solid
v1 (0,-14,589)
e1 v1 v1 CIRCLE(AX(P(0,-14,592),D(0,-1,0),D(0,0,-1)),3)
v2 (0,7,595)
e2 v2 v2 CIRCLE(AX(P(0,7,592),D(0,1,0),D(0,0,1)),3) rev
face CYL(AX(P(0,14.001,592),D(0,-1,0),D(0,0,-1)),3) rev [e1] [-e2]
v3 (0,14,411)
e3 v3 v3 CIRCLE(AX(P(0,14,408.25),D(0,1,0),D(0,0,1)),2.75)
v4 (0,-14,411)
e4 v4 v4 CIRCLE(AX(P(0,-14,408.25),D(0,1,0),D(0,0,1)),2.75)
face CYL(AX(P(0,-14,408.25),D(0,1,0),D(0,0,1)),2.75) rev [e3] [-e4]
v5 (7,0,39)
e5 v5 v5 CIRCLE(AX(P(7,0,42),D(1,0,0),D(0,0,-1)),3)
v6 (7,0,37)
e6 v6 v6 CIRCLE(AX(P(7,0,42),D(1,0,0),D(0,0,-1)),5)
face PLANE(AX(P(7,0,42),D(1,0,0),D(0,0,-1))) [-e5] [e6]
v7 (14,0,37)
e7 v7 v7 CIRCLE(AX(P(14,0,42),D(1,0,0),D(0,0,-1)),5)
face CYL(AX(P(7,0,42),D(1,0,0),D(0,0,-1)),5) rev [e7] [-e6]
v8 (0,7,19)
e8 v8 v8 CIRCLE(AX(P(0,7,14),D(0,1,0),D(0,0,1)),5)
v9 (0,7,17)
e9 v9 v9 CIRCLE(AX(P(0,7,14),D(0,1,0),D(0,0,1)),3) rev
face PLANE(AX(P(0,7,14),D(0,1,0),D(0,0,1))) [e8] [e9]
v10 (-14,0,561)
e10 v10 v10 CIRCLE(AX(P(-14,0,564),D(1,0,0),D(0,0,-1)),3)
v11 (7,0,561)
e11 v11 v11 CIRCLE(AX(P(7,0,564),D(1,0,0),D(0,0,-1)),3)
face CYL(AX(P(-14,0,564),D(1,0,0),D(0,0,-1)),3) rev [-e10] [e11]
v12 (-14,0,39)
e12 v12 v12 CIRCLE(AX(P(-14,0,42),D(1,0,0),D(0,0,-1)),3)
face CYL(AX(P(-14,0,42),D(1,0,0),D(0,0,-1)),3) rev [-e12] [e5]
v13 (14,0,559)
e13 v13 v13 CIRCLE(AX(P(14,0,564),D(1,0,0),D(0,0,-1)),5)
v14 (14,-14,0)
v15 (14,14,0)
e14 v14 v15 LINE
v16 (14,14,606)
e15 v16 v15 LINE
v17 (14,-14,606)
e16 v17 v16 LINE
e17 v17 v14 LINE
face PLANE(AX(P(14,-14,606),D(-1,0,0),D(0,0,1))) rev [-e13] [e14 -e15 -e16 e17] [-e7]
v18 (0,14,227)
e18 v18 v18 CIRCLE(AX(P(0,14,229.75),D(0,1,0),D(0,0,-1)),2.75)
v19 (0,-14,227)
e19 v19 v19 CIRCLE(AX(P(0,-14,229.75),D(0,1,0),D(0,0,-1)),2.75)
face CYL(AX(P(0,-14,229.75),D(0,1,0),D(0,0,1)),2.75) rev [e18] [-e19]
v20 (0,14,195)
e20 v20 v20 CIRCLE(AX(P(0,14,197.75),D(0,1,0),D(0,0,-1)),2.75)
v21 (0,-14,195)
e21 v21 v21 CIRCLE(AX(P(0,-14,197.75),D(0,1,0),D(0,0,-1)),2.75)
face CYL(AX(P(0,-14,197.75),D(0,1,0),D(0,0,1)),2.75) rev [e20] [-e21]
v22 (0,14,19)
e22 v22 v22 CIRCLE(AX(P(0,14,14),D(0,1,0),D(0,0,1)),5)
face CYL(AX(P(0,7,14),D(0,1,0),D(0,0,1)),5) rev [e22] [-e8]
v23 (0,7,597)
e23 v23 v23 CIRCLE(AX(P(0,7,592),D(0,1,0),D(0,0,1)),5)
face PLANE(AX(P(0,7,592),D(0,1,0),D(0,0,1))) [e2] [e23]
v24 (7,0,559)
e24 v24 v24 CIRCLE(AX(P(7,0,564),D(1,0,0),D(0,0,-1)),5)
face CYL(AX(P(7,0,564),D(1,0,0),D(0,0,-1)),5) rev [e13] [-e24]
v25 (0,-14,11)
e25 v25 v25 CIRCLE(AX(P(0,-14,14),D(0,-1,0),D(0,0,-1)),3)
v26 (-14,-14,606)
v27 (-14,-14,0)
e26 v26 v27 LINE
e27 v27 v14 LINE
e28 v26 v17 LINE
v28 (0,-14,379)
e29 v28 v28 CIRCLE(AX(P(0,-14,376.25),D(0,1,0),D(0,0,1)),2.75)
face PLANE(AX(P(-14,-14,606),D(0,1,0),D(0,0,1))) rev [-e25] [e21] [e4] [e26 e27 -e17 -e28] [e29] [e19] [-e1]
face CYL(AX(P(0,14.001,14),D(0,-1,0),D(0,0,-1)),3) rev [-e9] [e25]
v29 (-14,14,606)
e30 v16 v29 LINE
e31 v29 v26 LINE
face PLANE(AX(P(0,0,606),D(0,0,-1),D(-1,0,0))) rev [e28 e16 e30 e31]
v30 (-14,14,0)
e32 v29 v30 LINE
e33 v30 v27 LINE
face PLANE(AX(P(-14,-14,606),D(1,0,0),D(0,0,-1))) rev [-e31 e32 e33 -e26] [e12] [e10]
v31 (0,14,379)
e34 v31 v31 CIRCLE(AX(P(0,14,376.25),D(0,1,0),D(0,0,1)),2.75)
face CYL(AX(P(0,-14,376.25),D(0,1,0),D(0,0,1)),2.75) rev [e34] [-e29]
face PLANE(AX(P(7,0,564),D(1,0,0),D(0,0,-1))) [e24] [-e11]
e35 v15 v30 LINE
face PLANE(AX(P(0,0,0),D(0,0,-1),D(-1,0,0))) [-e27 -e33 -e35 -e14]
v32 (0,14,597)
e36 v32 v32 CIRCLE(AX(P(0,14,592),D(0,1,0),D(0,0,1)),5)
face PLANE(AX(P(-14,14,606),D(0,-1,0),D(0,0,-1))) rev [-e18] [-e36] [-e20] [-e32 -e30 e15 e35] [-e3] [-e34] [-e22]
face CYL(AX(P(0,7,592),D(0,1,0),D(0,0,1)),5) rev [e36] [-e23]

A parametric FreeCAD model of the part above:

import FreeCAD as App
import Part
import Sketcher
from FreeCAD import Vector
Q = App.Units.Quantity

doc = App.newDocument("Part")
body = doc.addObject("PartDesign::Body", "Body")

# Sketch on XY plane
sketch1 = body.newObject("Sketcher::SketchObject", "Sketch")
sketch1.AttachmentSupport = (doc.getObject("XY_Plane"), [""])
sketch1.MapMode = "FlatFace"
sketch1.addGeometry(Part.LineSegment(Vector(-14, 14, 0), Vector(-14, -14, 0)), False)
sketch1.addGeometry(Part.LineSegment(Vector(-14, -14, 0), Vector(14, -14, 0)), False)
sketch1.addGeometry(Part.LineSegment(Vector(14, -14, 0), Vector(14, 14, 0)), False)
sketch1.addGeometry(Part.LineSegment(Vector(14, 14, 0), Vector(-14, 14, 0)), False)
sketch1.addConstraint(Sketcher.Constraint("Coincident", 0, 2, 1, 1))
sketch1.addConstraint(Sketcher.Constraint("Coincident", 1, 2, 2, 1))
sketch1.addConstraint(Sketcher.Constraint("Coincident", 2, 2, 3, 1))
sketch1.addConstraint(Sketcher.Constraint("Coincident", 3, 2, 0, 1))
sketch1.addConstraint(Sketcher.Constraint("Vertical", 0))
sketch1.addConstraint(Sketcher.Constraint("Horizontal", 1))
sketch1.addConstraint(Sketcher.Constraint("Vertical", 2))
sketch1.addConstraint(Sketcher.Constraint("Horizontal", 3))
sketch1.addConstraint(Sketcher.Constraint("Symmetric", 0, 2, 2, 2, -1, 1))
sketch1.addConstraint(Sketcher.Constraint("Equal", 3, 0))
sketch1.addConstraint(Sketcher.Constraint("DistanceX", 1, 1, 1, 2, Q("28 mm")))
pad1 = body.newObject("PartDesign::Pad", "Pad")
pad1.Profile = sketch1
pad1.Length = 606

# Sketch on YZ plane
sketch2 = body.newObject("Sketcher::SketchObject", "Sketch001")
sketch2.AttachmentSupport = (doc.getObject("YZ_Plane"), [""])
sketch2.MapMode = "FlatFace"
sketch2.AttachmentOffset = App.Placement(Vector(0, 0, 14), App.Rotation())
sketch2.addGeometry(Part.Circle(Vector(0, 564, 0), Vector(0, 0, 1), 5), False)
sketch2.addGeometry(Part.Circle(Vector(0, 42, 0), Vector(0, 0, 1), 5), False)
sketch2.addConstraint(Sketcher.Constraint("Equal", 0, 1))
sketch2.addConstraint(Sketcher.Constraint("PointOnObject", 0, 3, -2))
sketch2.addConstraint(Sketcher.Constraint("PointOnObject", 1, 3, -2))
sketch2.addConstraint(Sketcher.Constraint("Diameter", 0, Q("10 mm")))
sketch2.addConstraint(Sketcher.Constraint("DistanceY", -1, 1, 0, 3, Q("564 mm")))
sketch2.addConstraint(Sketcher.Constraint("DistanceY", -1, 1, 1, 3, Q("42 mm")))
pocket1 = body.newObject("PartDesign::Pocket", "Pocket")
pocket1.Profile = sketch2
pocket1.Length = 7

# Sketch on YZ plane
sketch3 = body.newObject("Sketcher::SketchObject", "Sketch002")
sketch3.AttachmentSupport = (doc.getObject("YZ_Plane"), [""])
sketch3.MapMode = "FlatFace"
sketch3.AttachmentOffset = App.Placement(Vector(0, 0, 14), App.Rotation())
sketch3.addGeometry(Part.Circle(Vector(0, 564, 0), Vector(0, 0, 1), 3), False)
sketch3.addGeometry(Part.Circle(Vector(0, 42, 0), Vector(0, 0, 1), 3), False)
sketch3.addConstraint(Sketcher.Constraint("Equal", 0, 1))
sketch3.addConstraint(Sketcher.Constraint("PointOnObject", 0, 3, -2))
sketch3.addConstraint(Sketcher.Constraint("PointOnObject", 1, 3, -2))
sketch3.addConstraint(Sketcher.Constraint("Diameter", 0, Q("6 mm")))
sketch3.addConstraint(Sketcher.Constraint("DistanceY", -1, 1, 0, 3, Q("564 mm")))
sketch3.addConstraint(Sketcher.Constraint("DistanceY", -1, 1, 1, 3, Q("42 mm")))
pocket2 = body.newObject("PartDesign::Pocket", "Pocket001")
pocket2.Profile = sketch3
pocket2.Type = "ThroughAll"
pocket2.Midplane = True

# Sketch on XZ plane
sketch4 = body.newObject("Sketcher::SketchObject", "Sketch003")
sketch4.AttachmentSupport = (doc.getObject("XZ_Plane"), [""])
sketch4.MapMode = "FlatFace"
sketch4.AttachmentOffset = App.Placement(Vector(0, 0, 14), App.Rotation())
sketch4.addGeometry(Part.Circle(Vector(0, 14, 0), Vector(0, 0, 1), 3), False)
sketch4.addConstraint(Sketcher.Constraint("PointOnObject", 0, 3, -2))
sketch4.addConstraint(Sketcher.Constraint("Diameter", 0, Q("6 mm")))
sketch4.addConstraint(Sketcher.Constraint("DistanceY", -1, 1, 0, 3, Q("14 mm")))
pocket3 = body.newObject("PartDesign::Pocket", "Pocket002")
pocket3.Profile = sketch4
pocket3.Type = "UpToFirst"

# Sketch on XZ plane
sketch5 = body.newObject("Sketcher::SketchObject", "Sketch004")
sketch5.AttachmentSupport = (doc.getObject("XZ_Plane"), [""])
sketch5.MapMode = "FlatFace"
sketch5.AttachmentOffset = App.Placement(Vector(0, 0, 14), App.Rotation())
sketch5.addGeometry(Part.Circle(Vector(0, 592, 0), Vector(0, 0, 1), 3), False)
sketch5.addConstraint(Sketcher.Constraint("PointOnObject", 0, 3, -2))
sketch5.addConstraint(Sketcher.Constraint("Diameter", 0, Q("6 mm")))
sketch5.addConstraint(Sketcher.Constraint("DistanceY", -1, 1, 0, 3, Q("592 mm")))
pocket4 = body.newObject("PartDesign::Pocket", "Pocket003")
pocket4.Profile = sketch5
pocket4.Type = "UpToFirst"

# Sketch on XZ plane
sketch6 = body.newObject("Sketcher::SketchObject", "Sketch005")
sketch6.AttachmentSupport = (doc.getObject("XZ_Plane"), [""])
sketch6.MapMode = "FlatFace"
sketch6.AttachmentOffset = App.Placement(Vector(0, 0, -14), App.Rotation())
sketch6.addGeometry(Part.Circle(Vector(0, 592, 0), Vector(0, 0, 1), 5), False)
sketch6.addGeometry(Part.Circle(Vector(0, 14, 0), Vector(0, 0, 1), 5), False)
sketch6.addConstraint(Sketcher.Constraint("Equal", 0, 1))
sketch6.addConstraint(Sketcher.Constraint("PointOnObject", 0, 3, -2))
sketch6.addConstraint(Sketcher.Constraint("PointOnObject", 1, 3, -2))
sketch6.addConstraint(Sketcher.Constraint("Diameter", 0, Q("10 mm")))
sketch6.addConstraint(Sketcher.Constraint("DistanceY", -1, 1, 0, 3, Q("592 mm")))
sketch6.addConstraint(Sketcher.Constraint("DistanceY", -1, 1, 1, 3, Q("14 mm")))
pocket5 = body.newObject("PartDesign::Pocket", "Pocket004")
pocket5.Profile = sketch6
pocket5.Length = 7
pocket5.Reversed = True

# Sketch on XZ plane
sketch7 = body.newObject("Sketcher::SketchObject", "Sketch006")
sketch7.AttachmentSupport = (doc.getObject("XZ_Plane"), [""])
sketch7.MapMode = "FlatFace"
sketch7.AttachmentOffset = App.Placement(Vector(0, 0, -14), App.Rotation())
sketch7.addGeometry(Part.Circle(Vector(0, 408.2, 0), Vector(0, 0, 1), 2.8), False)
sketch7.addGeometry(Part.Circle(Vector(0, 376.2, 0), Vector(0, 0, 1), 2.8), False)
sketch7.addGeometry(Part.Circle(Vector(0, 229.8, 0), Vector(0, 0, 1), 2.8), False)
sketch7.addGeometry(Part.Circle(Vector(0, 197.8, 0), Vector(0, 0, 1), 2.8), False)
sketch7.addConstraint(Sketcher.Constraint("Equal", 0, 1))
sketch7.addConstraint(Sketcher.Constraint("Equal", 1, 2))
sketch7.addConstraint(Sketcher.Constraint("Equal", 2, 3))
sketch7.addConstraint(Sketcher.Constraint("PointOnObject", 0, 3, -2))
sketch7.addConstraint(Sketcher.Constraint("PointOnObject", 1, 3, -2))
sketch7.addConstraint(Sketcher.Constraint("PointOnObject", 2, 3, -2))
sketch7.addConstraint(Sketcher.Constraint("PointOnObject", 3, 3, -2))
sketch7.addConstraint(Sketcher.Constraint("Diameter", 0, Q("5.5 mm")))
sketch7.addConstraint(Sketcher.Constraint("DistanceY", 1, 3, 0, 3, Q("32 mm")))
sketch7.addConstraint(Sketcher.Constraint("DistanceY", 3, 3, 2, 3, Q("32 mm")))
sketch7.addConstraint(Sketcher.Constraint("DistanceY", 2, 3, 1, 3, Q("146.5 mm")))
sketch7.addConstraint(Sketcher.Constraint("DistanceY", -1, 1, 0, 3, Q("408.25 mm")))
pocket6 = body.newObject("PartDesign::Pocket", "Pocket005")
pocket6.Profile = sketch7
pocket6.Type = "ThroughAll"
pocket6.Reversed = True

doc.recompute()
